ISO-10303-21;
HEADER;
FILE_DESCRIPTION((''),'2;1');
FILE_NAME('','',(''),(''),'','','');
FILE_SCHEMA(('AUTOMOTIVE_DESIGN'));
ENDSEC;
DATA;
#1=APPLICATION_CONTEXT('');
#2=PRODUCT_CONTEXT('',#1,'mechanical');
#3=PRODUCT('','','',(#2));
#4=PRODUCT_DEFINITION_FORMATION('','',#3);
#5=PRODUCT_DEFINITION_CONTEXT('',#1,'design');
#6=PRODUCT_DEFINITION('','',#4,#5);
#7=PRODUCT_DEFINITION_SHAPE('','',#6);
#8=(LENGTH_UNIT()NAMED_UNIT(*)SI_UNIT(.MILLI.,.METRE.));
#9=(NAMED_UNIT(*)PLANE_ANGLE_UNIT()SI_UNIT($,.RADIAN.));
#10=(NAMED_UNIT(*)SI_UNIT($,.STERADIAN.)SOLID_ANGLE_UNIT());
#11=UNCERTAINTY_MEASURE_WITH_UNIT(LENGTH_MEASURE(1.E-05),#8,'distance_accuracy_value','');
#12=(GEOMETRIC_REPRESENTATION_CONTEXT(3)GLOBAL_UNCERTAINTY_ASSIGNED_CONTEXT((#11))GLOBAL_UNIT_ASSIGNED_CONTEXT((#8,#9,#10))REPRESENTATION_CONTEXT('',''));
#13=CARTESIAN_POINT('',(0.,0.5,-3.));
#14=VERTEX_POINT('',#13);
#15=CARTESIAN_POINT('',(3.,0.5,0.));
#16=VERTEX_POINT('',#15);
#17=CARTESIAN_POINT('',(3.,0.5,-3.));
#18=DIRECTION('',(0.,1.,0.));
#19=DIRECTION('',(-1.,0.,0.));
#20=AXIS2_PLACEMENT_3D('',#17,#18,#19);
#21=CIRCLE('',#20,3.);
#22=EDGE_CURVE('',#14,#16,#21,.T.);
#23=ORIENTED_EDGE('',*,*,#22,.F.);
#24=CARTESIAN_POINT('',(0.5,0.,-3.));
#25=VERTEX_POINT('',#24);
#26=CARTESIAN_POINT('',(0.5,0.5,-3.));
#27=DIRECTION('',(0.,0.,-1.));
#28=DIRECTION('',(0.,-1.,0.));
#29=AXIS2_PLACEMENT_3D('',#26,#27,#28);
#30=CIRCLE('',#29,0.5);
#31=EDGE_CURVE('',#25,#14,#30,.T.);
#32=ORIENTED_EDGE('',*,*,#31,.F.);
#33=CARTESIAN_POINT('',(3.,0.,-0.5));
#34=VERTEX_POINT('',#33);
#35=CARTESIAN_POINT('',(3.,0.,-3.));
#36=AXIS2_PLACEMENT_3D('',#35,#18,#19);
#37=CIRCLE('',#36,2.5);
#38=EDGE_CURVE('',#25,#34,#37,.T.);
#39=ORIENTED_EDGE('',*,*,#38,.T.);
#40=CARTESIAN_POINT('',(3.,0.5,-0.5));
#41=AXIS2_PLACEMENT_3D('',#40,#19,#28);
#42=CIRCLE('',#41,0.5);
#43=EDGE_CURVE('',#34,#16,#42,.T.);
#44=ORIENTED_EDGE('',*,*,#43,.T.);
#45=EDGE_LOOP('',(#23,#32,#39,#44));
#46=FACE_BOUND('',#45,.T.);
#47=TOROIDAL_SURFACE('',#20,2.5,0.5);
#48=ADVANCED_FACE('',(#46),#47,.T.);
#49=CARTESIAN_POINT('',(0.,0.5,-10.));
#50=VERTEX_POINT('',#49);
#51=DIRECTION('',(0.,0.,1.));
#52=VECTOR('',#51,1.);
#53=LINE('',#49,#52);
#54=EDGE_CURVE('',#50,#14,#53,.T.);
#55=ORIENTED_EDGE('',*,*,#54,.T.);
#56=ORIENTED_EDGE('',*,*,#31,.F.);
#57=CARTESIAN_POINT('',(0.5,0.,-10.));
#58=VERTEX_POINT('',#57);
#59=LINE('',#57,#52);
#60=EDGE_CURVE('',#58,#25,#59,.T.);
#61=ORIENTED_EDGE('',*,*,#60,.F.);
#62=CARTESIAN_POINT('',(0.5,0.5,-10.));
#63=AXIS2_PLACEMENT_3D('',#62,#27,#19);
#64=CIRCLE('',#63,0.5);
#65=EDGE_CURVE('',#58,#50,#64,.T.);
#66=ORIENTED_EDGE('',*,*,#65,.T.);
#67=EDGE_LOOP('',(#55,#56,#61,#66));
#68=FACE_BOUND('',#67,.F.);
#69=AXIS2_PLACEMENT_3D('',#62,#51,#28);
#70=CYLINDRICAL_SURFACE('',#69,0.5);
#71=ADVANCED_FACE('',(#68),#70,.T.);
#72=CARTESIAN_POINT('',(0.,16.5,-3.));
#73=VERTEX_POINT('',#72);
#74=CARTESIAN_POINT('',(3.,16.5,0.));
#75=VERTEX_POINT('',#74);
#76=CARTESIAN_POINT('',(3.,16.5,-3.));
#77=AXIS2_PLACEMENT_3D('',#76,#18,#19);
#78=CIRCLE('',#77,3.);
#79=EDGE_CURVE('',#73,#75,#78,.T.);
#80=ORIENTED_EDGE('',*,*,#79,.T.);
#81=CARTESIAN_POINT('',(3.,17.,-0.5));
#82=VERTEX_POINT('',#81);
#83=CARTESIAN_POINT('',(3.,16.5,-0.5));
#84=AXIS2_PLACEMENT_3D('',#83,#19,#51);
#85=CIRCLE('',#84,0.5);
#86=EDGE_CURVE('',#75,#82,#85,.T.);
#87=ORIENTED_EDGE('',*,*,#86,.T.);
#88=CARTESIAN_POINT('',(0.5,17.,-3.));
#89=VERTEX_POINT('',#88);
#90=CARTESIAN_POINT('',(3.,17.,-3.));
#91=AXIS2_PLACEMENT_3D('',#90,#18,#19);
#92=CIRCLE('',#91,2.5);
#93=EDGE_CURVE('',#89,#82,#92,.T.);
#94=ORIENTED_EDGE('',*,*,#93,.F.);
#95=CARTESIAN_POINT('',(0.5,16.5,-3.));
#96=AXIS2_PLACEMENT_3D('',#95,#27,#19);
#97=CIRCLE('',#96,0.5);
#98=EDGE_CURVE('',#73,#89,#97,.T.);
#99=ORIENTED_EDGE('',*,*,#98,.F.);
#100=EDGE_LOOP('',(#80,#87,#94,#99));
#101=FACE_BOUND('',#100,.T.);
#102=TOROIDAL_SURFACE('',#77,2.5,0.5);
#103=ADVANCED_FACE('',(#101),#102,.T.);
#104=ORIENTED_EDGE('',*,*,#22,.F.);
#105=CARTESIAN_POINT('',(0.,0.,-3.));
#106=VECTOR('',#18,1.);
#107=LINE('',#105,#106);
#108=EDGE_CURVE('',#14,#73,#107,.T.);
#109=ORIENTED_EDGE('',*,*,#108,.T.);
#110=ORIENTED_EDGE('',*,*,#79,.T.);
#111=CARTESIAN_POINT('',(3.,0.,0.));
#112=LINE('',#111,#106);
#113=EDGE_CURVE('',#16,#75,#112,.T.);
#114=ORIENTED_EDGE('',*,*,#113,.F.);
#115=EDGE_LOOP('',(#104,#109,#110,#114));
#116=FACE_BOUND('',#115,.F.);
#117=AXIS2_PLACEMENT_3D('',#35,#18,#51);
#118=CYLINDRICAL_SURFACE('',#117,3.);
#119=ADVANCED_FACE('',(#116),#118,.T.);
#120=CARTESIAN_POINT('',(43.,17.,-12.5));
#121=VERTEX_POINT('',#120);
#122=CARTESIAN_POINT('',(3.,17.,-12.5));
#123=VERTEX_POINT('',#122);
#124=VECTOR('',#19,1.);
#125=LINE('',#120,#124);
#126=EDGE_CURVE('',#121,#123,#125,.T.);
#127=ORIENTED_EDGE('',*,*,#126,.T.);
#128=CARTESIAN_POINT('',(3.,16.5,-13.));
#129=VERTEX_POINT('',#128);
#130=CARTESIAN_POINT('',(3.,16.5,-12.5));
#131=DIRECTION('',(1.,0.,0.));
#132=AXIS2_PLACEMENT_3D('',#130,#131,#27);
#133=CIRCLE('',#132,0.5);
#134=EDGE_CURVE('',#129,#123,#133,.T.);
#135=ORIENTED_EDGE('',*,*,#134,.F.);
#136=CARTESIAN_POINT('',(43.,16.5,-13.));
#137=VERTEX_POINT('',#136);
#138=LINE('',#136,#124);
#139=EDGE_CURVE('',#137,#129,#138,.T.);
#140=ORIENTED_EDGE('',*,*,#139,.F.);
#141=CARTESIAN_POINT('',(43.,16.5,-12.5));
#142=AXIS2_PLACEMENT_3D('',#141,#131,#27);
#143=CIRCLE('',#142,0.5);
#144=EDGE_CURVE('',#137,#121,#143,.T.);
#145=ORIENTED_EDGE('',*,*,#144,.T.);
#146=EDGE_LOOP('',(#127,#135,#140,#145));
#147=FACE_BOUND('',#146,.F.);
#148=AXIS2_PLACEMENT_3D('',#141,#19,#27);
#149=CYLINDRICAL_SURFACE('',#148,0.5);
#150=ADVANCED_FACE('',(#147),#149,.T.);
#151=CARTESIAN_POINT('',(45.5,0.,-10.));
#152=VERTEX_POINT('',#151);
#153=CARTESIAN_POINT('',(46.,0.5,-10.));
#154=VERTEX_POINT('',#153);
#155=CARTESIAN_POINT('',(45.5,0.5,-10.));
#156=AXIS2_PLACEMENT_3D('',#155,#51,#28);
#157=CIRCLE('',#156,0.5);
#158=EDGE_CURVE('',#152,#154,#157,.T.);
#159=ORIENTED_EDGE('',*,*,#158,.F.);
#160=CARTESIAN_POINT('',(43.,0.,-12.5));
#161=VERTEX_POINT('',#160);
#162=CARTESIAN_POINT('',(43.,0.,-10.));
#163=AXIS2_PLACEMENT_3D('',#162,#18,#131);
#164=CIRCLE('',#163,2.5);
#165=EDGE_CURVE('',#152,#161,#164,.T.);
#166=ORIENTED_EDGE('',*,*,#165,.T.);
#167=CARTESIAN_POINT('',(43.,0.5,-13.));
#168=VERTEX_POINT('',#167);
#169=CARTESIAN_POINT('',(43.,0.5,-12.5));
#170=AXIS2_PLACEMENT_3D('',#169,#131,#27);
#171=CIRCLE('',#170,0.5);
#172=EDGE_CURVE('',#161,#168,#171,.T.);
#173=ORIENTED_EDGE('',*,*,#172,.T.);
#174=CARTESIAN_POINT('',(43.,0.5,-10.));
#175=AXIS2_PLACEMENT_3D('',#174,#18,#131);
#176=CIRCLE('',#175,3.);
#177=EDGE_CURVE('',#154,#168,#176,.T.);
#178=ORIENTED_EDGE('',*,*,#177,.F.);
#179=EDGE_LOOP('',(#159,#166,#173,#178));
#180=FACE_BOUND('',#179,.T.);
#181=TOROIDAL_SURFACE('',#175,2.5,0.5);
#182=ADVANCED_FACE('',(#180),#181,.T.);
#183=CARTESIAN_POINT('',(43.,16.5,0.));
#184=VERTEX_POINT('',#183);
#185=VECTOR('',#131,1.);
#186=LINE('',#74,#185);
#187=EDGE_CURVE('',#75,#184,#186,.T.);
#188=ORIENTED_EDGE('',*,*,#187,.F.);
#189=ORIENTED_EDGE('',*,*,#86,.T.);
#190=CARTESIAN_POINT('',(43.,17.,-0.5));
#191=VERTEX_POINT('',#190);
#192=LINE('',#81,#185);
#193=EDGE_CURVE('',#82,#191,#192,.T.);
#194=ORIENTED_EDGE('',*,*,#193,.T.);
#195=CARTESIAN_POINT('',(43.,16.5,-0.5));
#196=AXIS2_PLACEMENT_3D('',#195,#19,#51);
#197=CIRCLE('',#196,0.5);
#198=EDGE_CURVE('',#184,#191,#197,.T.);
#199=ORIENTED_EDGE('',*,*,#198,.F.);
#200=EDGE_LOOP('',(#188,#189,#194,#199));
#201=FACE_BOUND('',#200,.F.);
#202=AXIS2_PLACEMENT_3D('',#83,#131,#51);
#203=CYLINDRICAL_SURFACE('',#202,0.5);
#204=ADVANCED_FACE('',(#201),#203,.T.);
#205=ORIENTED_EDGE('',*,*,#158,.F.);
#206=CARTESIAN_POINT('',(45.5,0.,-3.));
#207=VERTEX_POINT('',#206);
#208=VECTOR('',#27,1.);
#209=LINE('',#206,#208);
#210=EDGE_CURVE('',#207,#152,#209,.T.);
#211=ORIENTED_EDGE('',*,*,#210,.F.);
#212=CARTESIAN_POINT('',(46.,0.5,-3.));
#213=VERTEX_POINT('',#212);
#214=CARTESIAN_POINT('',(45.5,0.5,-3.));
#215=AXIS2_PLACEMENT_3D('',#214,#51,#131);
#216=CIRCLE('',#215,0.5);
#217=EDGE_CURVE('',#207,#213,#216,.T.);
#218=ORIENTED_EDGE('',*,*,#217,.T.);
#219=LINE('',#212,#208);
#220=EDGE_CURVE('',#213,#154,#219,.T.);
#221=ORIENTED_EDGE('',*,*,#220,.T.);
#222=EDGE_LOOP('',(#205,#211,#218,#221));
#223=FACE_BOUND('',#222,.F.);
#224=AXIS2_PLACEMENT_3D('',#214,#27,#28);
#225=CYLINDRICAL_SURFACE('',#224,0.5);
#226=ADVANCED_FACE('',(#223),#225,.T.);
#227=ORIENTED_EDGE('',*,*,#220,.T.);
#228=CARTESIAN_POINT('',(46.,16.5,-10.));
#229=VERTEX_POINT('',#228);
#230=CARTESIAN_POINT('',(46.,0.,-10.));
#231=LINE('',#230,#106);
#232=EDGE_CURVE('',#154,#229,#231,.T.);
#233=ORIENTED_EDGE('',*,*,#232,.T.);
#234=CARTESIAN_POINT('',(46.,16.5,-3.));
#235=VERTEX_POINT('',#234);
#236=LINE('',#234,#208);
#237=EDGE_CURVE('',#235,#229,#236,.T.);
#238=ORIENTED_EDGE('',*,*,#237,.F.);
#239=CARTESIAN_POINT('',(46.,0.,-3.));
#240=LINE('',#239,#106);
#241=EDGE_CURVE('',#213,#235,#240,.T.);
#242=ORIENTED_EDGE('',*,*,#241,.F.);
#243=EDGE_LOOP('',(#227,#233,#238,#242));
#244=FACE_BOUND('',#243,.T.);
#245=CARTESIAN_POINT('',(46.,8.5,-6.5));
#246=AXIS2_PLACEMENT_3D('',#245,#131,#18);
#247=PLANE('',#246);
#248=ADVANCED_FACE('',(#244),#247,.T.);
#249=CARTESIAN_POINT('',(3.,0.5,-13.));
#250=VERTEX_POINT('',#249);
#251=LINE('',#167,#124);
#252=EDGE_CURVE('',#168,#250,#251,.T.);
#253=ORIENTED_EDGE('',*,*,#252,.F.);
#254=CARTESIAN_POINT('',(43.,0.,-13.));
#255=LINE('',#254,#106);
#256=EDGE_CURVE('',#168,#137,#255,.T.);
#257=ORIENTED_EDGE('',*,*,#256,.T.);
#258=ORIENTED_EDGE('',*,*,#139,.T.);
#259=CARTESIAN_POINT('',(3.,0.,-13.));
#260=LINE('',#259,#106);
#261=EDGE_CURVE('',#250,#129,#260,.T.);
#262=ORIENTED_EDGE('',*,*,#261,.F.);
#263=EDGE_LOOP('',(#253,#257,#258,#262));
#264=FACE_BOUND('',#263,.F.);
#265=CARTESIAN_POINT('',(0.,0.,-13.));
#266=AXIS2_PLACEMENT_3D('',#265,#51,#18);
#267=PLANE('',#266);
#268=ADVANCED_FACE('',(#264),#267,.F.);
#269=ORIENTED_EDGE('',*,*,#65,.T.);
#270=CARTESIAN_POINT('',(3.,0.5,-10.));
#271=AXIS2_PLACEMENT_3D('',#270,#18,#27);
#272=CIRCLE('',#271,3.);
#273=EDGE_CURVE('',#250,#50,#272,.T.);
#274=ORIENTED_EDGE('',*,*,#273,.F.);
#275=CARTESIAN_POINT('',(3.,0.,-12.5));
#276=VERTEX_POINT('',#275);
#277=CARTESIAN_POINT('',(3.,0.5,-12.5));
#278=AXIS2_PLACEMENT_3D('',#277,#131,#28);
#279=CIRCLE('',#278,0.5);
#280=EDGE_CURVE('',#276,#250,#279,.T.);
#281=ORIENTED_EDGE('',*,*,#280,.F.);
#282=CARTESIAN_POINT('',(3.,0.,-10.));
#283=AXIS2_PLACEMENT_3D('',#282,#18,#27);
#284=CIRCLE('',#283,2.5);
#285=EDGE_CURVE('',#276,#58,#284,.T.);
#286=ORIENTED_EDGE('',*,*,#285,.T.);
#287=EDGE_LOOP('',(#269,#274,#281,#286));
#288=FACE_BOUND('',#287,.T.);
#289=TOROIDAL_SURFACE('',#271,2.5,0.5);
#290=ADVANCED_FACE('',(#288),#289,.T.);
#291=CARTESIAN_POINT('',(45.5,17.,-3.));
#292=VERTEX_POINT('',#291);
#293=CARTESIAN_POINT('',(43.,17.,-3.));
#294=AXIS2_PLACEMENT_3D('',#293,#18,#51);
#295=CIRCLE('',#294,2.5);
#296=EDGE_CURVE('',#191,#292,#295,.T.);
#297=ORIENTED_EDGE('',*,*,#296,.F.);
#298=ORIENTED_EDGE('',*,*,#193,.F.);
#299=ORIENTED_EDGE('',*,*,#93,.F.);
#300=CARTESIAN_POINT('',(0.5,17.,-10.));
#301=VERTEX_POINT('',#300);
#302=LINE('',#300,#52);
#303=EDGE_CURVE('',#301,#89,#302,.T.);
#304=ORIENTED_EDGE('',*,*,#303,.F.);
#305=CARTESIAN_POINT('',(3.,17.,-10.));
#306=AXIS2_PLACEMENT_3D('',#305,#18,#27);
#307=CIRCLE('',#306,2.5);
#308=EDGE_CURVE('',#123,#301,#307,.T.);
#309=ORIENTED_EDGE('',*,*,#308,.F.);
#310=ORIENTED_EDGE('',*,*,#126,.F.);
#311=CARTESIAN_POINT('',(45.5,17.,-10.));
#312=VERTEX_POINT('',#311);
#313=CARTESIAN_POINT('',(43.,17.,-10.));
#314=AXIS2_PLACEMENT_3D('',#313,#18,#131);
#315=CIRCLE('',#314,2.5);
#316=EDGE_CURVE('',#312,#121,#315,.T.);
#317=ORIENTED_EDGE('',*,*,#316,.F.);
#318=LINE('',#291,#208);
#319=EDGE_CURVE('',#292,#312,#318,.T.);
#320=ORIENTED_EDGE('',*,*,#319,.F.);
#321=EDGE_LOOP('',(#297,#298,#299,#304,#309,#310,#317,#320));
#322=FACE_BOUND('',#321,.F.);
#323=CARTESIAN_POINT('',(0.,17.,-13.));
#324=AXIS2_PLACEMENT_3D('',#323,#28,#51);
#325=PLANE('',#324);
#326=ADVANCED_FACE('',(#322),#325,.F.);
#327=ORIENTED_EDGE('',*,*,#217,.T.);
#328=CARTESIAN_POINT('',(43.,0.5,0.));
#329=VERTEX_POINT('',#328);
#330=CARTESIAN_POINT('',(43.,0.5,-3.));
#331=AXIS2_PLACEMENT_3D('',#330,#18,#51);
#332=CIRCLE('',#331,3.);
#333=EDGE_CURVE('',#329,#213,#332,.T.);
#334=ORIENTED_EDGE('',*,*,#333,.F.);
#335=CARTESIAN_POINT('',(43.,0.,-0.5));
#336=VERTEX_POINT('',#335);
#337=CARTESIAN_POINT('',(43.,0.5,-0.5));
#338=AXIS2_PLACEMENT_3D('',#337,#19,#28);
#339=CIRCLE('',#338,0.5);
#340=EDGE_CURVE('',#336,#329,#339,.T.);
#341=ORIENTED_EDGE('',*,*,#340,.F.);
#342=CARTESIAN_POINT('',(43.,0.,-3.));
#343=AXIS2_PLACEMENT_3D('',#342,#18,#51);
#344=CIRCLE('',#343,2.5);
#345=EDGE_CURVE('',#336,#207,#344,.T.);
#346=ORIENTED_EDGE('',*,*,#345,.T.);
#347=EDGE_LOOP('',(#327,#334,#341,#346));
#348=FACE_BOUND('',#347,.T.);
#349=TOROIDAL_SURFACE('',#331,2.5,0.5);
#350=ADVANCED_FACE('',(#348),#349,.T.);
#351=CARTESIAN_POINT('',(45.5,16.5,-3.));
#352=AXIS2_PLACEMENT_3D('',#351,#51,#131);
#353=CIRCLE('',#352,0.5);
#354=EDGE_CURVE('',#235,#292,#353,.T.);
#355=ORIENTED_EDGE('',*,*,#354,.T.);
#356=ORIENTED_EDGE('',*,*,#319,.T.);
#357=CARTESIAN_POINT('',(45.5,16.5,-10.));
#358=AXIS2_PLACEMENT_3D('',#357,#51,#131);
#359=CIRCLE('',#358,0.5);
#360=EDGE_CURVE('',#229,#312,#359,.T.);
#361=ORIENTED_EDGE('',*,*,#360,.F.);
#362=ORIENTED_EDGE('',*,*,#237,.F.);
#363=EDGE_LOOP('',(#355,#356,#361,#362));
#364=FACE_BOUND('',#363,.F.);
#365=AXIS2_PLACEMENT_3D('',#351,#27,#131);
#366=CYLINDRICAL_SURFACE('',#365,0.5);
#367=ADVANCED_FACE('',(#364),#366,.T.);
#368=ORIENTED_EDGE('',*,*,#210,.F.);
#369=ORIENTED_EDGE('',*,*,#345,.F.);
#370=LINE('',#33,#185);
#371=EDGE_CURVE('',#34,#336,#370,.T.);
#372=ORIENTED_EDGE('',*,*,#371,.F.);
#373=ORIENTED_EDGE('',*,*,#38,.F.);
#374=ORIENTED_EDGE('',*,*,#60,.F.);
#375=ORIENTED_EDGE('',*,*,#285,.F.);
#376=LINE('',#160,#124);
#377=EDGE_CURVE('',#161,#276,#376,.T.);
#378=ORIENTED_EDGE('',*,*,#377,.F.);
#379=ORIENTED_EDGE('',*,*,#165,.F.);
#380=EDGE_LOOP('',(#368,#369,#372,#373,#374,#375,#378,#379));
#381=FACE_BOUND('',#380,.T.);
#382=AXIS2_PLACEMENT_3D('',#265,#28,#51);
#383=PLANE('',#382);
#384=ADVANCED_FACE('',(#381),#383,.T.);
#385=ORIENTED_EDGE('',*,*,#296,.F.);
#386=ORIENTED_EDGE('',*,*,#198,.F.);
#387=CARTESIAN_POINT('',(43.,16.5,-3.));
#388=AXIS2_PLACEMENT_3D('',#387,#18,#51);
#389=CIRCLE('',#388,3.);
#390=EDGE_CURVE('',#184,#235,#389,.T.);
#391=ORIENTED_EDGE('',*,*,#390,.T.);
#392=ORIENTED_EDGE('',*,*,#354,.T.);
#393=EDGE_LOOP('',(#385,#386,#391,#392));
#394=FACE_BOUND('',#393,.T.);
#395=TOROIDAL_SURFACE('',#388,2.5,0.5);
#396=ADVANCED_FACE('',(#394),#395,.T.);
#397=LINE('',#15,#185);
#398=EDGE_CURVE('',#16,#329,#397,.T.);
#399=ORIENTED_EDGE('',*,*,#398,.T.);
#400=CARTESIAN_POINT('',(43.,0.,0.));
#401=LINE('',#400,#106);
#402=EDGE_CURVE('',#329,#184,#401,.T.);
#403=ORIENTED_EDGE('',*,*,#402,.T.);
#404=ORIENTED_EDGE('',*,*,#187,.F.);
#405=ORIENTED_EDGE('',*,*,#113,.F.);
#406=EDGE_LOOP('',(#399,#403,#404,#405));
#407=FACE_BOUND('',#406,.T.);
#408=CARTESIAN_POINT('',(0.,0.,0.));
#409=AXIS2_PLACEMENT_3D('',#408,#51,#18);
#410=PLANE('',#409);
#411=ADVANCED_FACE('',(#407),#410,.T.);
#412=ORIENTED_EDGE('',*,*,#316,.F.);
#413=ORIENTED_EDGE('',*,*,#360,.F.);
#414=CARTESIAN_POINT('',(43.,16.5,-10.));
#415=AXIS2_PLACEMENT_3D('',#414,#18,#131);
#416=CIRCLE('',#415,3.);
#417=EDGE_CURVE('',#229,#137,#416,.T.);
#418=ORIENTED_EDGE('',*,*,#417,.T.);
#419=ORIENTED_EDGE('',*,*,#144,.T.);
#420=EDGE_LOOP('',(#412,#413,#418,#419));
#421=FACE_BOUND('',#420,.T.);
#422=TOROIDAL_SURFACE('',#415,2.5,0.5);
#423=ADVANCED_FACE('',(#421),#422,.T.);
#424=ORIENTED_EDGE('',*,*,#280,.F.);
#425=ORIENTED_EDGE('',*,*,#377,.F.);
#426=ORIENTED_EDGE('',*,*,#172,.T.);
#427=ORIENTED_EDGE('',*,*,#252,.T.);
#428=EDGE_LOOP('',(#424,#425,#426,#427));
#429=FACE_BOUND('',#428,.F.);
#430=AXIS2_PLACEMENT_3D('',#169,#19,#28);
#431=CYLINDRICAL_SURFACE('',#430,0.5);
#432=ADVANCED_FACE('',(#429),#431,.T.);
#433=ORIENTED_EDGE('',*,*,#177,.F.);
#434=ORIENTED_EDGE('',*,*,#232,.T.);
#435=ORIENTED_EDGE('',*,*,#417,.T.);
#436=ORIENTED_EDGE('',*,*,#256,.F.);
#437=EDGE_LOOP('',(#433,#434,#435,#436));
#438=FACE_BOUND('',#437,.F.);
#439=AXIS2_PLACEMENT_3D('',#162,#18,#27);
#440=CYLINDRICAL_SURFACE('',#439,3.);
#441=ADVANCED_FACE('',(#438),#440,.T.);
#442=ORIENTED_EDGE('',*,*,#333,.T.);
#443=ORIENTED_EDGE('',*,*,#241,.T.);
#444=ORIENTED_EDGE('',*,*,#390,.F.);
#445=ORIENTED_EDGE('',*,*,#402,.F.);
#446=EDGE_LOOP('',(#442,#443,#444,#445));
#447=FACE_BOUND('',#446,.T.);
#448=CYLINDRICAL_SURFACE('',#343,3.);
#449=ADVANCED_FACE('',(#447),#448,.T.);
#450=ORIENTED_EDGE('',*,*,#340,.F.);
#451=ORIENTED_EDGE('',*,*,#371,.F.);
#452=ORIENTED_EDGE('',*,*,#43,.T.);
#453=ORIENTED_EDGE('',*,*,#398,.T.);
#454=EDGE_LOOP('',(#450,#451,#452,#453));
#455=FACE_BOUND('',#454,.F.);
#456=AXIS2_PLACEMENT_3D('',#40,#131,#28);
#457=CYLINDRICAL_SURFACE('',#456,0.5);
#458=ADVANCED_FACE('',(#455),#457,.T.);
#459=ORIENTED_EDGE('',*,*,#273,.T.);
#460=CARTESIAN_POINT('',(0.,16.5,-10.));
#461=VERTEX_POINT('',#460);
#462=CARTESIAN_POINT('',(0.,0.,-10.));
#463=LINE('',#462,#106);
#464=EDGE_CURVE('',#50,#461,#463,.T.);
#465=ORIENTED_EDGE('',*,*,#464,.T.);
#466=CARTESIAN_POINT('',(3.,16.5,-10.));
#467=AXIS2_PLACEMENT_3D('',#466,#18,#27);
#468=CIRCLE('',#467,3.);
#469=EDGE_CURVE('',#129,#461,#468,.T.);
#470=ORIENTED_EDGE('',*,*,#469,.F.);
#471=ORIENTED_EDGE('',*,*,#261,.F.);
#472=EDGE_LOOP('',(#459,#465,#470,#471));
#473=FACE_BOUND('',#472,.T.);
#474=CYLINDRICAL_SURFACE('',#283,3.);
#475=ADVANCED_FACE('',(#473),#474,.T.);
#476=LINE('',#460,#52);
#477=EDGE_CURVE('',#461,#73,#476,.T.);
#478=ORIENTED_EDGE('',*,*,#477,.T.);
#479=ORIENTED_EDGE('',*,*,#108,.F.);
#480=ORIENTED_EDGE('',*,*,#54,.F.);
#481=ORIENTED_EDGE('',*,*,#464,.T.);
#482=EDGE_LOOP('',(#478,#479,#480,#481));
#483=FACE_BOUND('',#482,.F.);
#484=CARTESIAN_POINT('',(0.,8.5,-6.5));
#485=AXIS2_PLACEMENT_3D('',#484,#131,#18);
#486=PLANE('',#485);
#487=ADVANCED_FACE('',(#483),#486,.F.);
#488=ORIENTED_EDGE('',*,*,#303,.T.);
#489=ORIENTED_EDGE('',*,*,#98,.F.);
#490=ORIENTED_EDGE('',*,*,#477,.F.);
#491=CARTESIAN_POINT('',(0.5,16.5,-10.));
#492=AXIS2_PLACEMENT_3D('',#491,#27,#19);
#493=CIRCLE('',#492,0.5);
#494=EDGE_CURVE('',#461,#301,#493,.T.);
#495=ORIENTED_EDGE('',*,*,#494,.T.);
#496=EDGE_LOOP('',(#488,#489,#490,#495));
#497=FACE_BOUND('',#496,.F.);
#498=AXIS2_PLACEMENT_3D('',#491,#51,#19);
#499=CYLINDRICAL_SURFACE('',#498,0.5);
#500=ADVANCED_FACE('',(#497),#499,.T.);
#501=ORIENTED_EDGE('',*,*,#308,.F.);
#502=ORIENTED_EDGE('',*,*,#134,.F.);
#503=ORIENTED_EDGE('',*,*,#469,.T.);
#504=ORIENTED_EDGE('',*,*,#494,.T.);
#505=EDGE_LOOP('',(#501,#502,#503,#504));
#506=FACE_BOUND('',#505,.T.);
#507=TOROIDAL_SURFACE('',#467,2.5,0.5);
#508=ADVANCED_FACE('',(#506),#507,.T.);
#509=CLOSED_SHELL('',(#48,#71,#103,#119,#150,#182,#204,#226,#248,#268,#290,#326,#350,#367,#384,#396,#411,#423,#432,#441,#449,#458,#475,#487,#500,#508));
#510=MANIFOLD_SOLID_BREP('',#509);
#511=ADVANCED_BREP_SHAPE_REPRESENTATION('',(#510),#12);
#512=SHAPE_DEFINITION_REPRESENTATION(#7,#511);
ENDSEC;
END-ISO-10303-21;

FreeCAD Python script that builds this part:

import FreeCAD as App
import Part
import Sketcher
Q = App.Units.Quantity


def edges_at(feature, points):
    """Names of the edges that pass closest to the given points."""
    edges = feature.Shape.Edges
    near = lambda p: min(range(len(edges)), key=lambda i: edges[i].distToShape(Part.Vertex(*p))[0])
    return sorted({f"Edge{near(p) + 1}" for p in points})

doc = App.newDocument("Part")
body = doc.addObject("PartDesign::Body", "Body")

# Sketch on YZ plane
sketch1 = doc.addObject("Sketcher::SketchObject", "Sketch")
body.addObject(sketch1)
sketch1.AttachmentSupport = (doc.YZ_Plane, [""])
sketch1.MapMode = "FlatFace"
sketch1.addGeometry(Part.LineSegment(App.Vector(0, 0, 0), App.Vector(0, -13, 0)), False)
sketch1.addGeometry(Part.LineSegment(App.Vector(0, -13, 0), App.Vector(17, -13, 0)), False)
sketch1.addGeometry(Part.LineSegment(App.Vector(17, -13, 0), App.Vector(17, 0, 0)), False)
sketch1.addGeometry(Part.LineSegment(App.Vector(17, 0, 0), App.Vector(0, 0, 0)), False)
sketch1.addConstraint(Sketcher.Constraint("Coincident", 0, 2, 1, 1))
sketch1.addConstraint(Sketcher.Constraint("Coincident", 1, 2, 2, 1))
sketch1.addConstraint(Sketcher.Constraint("Coincident", 2, 2, 3, 1))
sketch1.addConstraint(Sketcher.Constraint("Coincident", 3, 2, 0, 1))
sketch1.addConstraint(Sketcher.Constraint("Vertical", 0))
sketch1.addConstraint(Sketcher.Constraint("Horizontal", 1))
sketch1.addConstraint(Sketcher.Constraint("Vertical", 2))
sketch1.addConstraint(Sketcher.Constraint("Horizontal", 3))
sketch1.addConstraint(Sketcher.Constraint("Coincident", 3, 2, -1, 1))
sketch1.addConstraint(Sketcher.Constraint("DistanceX", 1, 1, 1, 2, Q("17 mm")))
sketch1.addConstraint(Sketcher.Constraint("DistanceY", 0, 2, 0, 1, Q("13 mm")))
pad1 = doc.addObject("PartDesign::Pad", "Pad")
body.addObject(pad1)
pad1.Profile = sketch1
pad1.Length = 46
doc.recompute()

fillet = doc.addObject("PartDesign::Fillet", "Fillet")
body.addObject(fillet)
fillet.Base = (pad1, edges_at(pad1, [
    (46, 8.5, 0),
    (46, 8.5, -13),
    (0, 8.5, 0),
    (0, 8.5, -13),
]))
fillet.Radius = 3
doc.recompute()

fillet2 = doc.addObject("PartDesign::Fillet", "Fillet001")
body.addObject(fillet2)
fillet2.Base = (fillet, edges_at(fillet, [(23, 0, 0), (23, 17, 0)]))
fillet2.Radius = 0.5

doc.recompute()
